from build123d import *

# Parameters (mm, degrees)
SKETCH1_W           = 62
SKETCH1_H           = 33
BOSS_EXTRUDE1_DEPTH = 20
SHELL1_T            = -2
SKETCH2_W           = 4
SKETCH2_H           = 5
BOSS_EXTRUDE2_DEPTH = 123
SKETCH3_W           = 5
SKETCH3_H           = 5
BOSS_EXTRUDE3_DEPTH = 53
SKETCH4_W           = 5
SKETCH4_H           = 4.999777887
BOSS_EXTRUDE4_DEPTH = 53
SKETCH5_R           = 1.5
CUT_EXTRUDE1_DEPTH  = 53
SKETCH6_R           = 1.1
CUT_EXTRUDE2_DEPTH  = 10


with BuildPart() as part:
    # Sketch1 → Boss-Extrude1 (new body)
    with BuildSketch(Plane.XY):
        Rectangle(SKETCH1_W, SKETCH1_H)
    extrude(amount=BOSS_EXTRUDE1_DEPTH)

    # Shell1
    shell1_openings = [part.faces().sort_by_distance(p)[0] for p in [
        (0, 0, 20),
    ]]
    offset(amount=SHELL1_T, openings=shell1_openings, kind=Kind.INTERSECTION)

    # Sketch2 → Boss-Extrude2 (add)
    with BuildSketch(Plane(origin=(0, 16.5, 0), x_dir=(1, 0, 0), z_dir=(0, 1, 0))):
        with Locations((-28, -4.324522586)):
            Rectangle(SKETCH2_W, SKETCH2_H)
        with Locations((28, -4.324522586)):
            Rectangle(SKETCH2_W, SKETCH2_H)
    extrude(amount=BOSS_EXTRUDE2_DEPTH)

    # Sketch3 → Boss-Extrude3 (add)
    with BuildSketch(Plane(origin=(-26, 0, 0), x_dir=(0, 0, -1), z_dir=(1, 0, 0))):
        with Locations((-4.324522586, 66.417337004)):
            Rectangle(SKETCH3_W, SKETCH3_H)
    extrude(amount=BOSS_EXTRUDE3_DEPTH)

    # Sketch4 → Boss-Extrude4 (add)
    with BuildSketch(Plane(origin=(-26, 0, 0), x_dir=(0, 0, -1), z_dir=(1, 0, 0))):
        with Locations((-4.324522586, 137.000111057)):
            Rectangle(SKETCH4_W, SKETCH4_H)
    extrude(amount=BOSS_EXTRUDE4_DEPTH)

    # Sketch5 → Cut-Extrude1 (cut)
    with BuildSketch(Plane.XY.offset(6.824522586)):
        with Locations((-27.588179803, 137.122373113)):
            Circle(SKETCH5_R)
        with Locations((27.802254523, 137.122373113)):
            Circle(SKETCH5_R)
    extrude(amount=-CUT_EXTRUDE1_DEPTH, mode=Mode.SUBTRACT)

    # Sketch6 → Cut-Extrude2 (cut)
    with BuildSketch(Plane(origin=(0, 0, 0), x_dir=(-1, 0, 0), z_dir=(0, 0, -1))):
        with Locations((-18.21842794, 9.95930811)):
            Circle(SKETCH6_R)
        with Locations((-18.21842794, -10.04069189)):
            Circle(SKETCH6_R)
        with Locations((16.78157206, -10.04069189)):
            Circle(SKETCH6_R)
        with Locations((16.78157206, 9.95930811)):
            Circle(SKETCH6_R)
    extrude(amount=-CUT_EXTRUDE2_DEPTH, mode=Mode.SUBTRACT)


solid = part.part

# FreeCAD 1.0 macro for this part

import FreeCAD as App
import Part
import Sketcher
Q = App.Units.Quantity


def faces_at(feature, points):
    """Names of the faces that lie closest to the given points."""
    faces = feature.Shape.Faces
    near = lambda p: min(range(len(faces)), key=lambda i: faces[i].distToShape(Part.Vertex(*p))[0])
    return sorted({f"Face{near(p) + 1}" for p in points})


def add_polygon(sketch, points):
    """Adds a closed chain of lines whose ends are joined by coincident constraints."""
    first, n = sketch.GeometryCount, len(points)
    for a, b in zip(points, points[1:] + points[:1]):
        sketch.addGeometry(Part.LineSegment(App.Vector(*a, 0), App.Vector(*b, 0)), False)
    for i in range(n):
        sketch.addConstraint(Sketcher.Constraint("Coincident", first + i, 2, first + (i + 1) % n, 1))

doc = App.newDocument("Part")
body = doc.addObject("PartDesign::Body", "Body")

# Sketch on XY plane
sketch1 = body.newObject("Sketcher::SketchObject", "Sketch")
sketch1.AttachmentSupport = (doc.getObject("XY_Plane"), [""])
sketch1.MapMode = "FlatFace"
add_polygon(sketch1, [(-31, 16), (-31, -16), (31, -16), (31, 16)])  # lines 0-3
sketch1.addConstraint([
    Sketcher.Constraint("Vertical", 0),
    Sketcher.Constraint("Horizontal", 1),
    Sketcher.Constraint("Vertical", 2),
    Sketcher.Constraint("Horizontal", 3),
    Sketcher.Constraint("Symmetric", 0, 2, 2, 2, -1, 1),
    Sketcher.Constraint("DistanceX", 1, 1, 1, 2, Q("62 mm")),
    Sketcher.Constraint("DistanceY", 0, 2, 0, 1, Q("33 mm")),
])
pad1 = body.newObject("PartDesign::Pad", "Pad")
pad1.Profile = sketch1
pad1.Length = 20
doc.recompute()

thickness = body.newObject("PartDesign::Thickness", "Thickness")
thickness.Base = (pad1, faces_at(pad1, [(0, 0, 20)]))
thickness.Value = 2
thickness.Reversed = True
thickness.Join = "Intersection"

# Sketch on XZ plane
sketch2 = body.newObject("Sketcher::SketchObject", "Sketch001")
sketch2.AttachmentSupport = (doc.getObject("XZ_Plane"), [""])
sketch2.MapMode = "FlatFace"
sketch2.AttachmentOffset = App.Placement(App.Vector(0, 0, -16.5), App.Rotation())
add_polygon(sketch2, [(-30, 1.8), (-30, 6.8), (-26, 6.8), (-26, 1.8)])  # lines 0-3
add_polygon(sketch2, [(26, 1.8), (26, 6.8), (30, 6.8), (30, 1.8)])  # lines 4-7
sketch2.addConstraint([
    Sketcher.Constraint("Vertical", 0),
    Sketcher.Constraint("Horizontal", 1),
    Sketcher.Constraint("Vertical", 2),
    Sketcher.Constraint("Horizontal", 3),
    Sketcher.Constraint("Vertical", 4),
    Sketcher.Constraint("Horizontal", 5),
    Sketcher.Constraint("Vertical", 6),
    Sketcher.Constraint("Horizontal", 7),
    Sketcher.Constraint("Symmetric", 1, 2, 4, 2, -2),
    Sketcher.Constraint("Symmetric", 3, 2, 6, 2, -2),
    Sketcher.Constraint("DistanceX", 1, 1, 1, 2, Q("4 mm")),
    Sketcher.Constraint("DistanceY", 0, 1, 0, 2, Q("5 mm")),
    Sketcher.Constraint("DistanceX", 0, 2, -1, 1, Q("30 mm")),
    Sketcher.Constraint("DistanceY", -1, 1, 0, 2, Q("6.824523 mm")),
])
pad2 = body.newObject("PartDesign::Pad", "Pad001")
pad2.Profile = sketch2
pad2.Length = 123
pad2.Reversed = True

# Sketch on YZ plane
sketch3 = body.newObject("Sketcher::SketchObject", "Sketch002")
sketch3.AttachmentSupport = (doc.getObject("YZ_Plane"), [""])
sketch3.MapMode = "FlatFace"
sketch3.AttachmentOffset = App.Placement(App.Vector(0, 0, -26), App.Rotation())
add_polygon(sketch3, [(69, 7), (64, 7), (64, 2), (69, 2)])  # lines 0-3
sketch3.addConstraint([
    Sketcher.Constraint("Horizontal", 0),
    Sketcher.Constraint("Vertical", 1),
    Sketcher.Constraint("Horizontal", 2),
    Sketcher.Constraint("Vertical", 3),
    Sketcher.Constraint("Equal", 2, 1),
    Sketcher.Constraint("DistanceX", 0, 2, 0, 1, Q("5 mm")),
    Sketcher.Constraint("DistanceX", -1, 1, 0, 2, Q("63.917337 mm")),
    Sketcher.Constraint("DistanceY", -1, 1, 0, 2, Q("6.824523 mm")),
])
pad3 = body.newObject("PartDesign::Pad", "Pad002")
pad3.Profile = sketch3
pad3.Length = 53

# Sketch on YZ plane
sketch4 = body.newObject("Sketcher::SketchObject", "Sketch003")
sketch4.AttachmentSupport = (doc.getObject("YZ_Plane"), [""])
sketch4.MapMode = "FlatFace"
sketch4.AttachmentOffset = App.Placement(App.Vector(0, 0, -26), App.Rotation())
add_polygon(sketch4, [(139.5, 6.8), (134.5, 6.8), (134.5, 1.8), (139.5, 1.8)])  # lines 0-3
sketch4.addConstraint([
    Sketcher.Constraint("Horizontal", 0),
    Sketcher.Constraint("Vertical", 1),
    Sketcher.Constraint("Horizontal", 2),
    Sketcher.Constraint("Vertical", 3),
    Sketcher.Constraint("DistanceY", 1, 2, 1, 1, Q("5 mm")),
    Sketcher.Constraint("DistanceX", -1, 1, 2, 2, Q("139.5 mm")),
    Sketcher.Constraint("DistanceX", 0, 2, 0, 1, Q("4.999778 mm")),
    Sketcher.Constraint("DistanceY", -1, 1, 0, 2, Q("6.824523 mm")),
])
pad4 = body.newObject("PartDesign::Pad", "Pad003")
pad4.Profile = sketch4
pad4.Length = 53

# Sketch on XY plane
sketch5 = body.newObject("Sketcher::SketchObject", "Sketch004")
sketch5.AttachmentSupport = (doc.getObject("XY_Plane"), [""])
sketch5.MapMode = "FlatFace"
sketch5.AttachmentOffset = App.Placement(App.Vector(0, 0, 6.824523), App.Rotation())
sketch5.addGeometry([
    Part.Circle(App.Vector(-27.6, 137.1, 0), App.Vector(0, 0, 1), 1.5),
    Part.Circle(App.Vector(27.8, 137.1, 0), App.Vector(0, 0, 1), 1.5),
], False)
sketch5.addConstraint([
    Sketcher.Constraint("Equal", 0, 1),
    Sketcher.Constraint("Horizontal", 0, 3, 1, 3),
    Sketcher.Constraint("Diameter", 0, Q("3 mm")),
    Sketcher.Constraint("DistanceX", 0, 3, -1, 1, Q("27.58818 mm")),
    Sketcher.Constraint("DistanceY", -1, 1, 0, 3, Q("137.122373 mm")),
    Sketcher.Constraint("DistanceX", -1, 1, 1, 3, Q("27.802255 mm")),
])
pocket1 = body.newObject("PartDesign::Pocket", "Pocket")
pocket1.Profile = sketch5
pocket1.Length = 53

# Sketch on XY plane
sketch6 = body.newObject("Sketcher::SketchObject", "Sketch005")
sketch6.AttachmentSupport = (doc.getObject("XY_Plane"), [""])
sketch6.MapMode = "FlatFace"
sketch6.addGeometry([
    Part.Circle(App.Vector(18.2, 10, 0), App.Vector(0, 0, 1), 1.1),
    Part.Circle(App.Vector(18.2, -10, 0), App.Vector(0, 0, 1), 1.1),
    Part.Circle(App.Vector(-16.8, -10, 0), App.Vector(0, 0, 1), 1.1),
    Part.Circle(App.Vector(-16.8, 10, 0), App.Vector(0, 0, 1), 1.1),
], False)
sketch6.addConstraint([
    Sketcher.Constraint("Equal", 0, 1),
    Sketcher.Constraint("Equal", 1, 2),
    Sketcher.Constraint("Equal", 2, 3),
    Sketcher.Constraint("Horizontal", 1, 3, 2, 3),
    Sketcher.Constraint("Horizontal", 0, 3, 3, 3),
    Sketcher.Constraint("Vertical", 0, 3, 1, 3),
    Sketcher.Constraint("Vertical", 2, 3, 3, 3),
    Sketcher.Constraint("Diameter", 0, Q("2.2 mm")),
    Sketcher.Constraint("DistanceY", 1, 3, 0, 3, Q("20 mm")),
    Sketcher.Constraint("DistanceX", 2, 3, 1, 3, Q("35 mm")),
    Sketcher.Constraint("DistanceY", -1, 1, 0, 3, Q("9.959308 mm")),
    Sketcher.Constraint("DistanceX", -1, 1, 0, 3, Q("18.218428 mm")),
])
pocket2 = body.newObject("PartDesign::Pocket", "Pocket001")
pocket2.Profile = sketch6
pocket2.Length = 10
pocket2.Reversed = True

doc.recompute()
